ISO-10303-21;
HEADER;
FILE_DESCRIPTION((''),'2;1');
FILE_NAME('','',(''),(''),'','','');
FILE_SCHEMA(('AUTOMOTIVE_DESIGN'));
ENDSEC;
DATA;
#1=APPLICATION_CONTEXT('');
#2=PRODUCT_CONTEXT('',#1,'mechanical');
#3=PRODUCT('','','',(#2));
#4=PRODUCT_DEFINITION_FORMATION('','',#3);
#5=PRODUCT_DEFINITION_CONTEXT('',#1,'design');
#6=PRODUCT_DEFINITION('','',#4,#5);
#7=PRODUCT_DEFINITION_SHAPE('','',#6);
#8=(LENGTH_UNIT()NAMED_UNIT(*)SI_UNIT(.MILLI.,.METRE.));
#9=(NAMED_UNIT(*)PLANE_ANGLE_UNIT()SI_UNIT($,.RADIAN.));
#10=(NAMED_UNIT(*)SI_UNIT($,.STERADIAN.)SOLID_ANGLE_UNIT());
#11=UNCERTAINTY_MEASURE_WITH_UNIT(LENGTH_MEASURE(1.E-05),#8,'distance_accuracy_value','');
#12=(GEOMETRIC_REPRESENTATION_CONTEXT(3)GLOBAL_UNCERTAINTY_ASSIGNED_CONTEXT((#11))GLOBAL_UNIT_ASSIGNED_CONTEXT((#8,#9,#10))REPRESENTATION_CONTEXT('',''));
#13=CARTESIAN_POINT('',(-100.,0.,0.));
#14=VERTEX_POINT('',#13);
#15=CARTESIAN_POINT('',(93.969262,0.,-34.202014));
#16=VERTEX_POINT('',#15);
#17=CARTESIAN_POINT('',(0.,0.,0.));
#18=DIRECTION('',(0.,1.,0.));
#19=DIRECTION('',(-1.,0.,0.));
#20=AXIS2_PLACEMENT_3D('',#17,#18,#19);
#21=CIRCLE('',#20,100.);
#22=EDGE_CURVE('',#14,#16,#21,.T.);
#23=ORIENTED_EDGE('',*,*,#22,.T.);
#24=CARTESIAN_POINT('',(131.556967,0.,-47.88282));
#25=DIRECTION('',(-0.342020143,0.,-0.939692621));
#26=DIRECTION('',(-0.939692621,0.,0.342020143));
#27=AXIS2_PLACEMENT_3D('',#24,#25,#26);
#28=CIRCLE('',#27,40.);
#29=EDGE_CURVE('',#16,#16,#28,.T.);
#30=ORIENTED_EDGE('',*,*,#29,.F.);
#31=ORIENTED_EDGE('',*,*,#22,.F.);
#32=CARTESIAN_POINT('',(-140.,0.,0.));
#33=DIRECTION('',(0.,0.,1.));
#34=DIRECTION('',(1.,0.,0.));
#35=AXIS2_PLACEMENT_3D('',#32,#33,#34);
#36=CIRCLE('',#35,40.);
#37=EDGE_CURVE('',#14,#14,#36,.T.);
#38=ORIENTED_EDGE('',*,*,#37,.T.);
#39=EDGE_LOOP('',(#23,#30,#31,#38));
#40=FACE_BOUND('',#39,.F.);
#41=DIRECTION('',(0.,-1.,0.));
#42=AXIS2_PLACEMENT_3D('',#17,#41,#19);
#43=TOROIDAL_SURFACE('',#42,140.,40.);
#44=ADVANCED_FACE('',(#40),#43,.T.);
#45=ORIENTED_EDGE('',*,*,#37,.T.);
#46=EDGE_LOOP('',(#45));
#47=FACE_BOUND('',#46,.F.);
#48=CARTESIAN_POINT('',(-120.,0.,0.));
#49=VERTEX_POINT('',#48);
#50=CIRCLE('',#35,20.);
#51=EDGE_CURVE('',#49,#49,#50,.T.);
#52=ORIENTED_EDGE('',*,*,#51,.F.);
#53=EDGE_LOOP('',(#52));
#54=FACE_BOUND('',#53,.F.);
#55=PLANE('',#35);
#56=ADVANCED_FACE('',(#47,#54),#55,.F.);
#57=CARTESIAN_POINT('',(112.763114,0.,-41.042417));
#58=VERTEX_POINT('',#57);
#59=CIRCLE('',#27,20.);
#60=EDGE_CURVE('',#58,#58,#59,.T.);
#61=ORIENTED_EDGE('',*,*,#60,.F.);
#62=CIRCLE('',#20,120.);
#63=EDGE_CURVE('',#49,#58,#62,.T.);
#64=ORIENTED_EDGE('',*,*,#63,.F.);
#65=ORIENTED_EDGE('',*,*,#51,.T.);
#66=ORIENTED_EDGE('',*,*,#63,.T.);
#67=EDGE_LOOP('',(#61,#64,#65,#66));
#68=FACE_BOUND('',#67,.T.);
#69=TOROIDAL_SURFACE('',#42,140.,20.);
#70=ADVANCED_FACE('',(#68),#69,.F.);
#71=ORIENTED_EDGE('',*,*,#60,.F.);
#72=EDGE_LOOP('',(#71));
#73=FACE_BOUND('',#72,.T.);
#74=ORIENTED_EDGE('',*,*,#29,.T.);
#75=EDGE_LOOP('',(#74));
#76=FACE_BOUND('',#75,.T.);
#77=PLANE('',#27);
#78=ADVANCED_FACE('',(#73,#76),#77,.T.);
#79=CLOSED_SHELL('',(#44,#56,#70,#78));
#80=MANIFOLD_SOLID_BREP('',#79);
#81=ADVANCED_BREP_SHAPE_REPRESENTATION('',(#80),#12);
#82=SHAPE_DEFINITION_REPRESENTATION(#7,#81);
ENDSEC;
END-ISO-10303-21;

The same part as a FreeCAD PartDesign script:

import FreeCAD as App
import Part
import Sketcher

V = App.Vector

doc = App.newDocument("Part")
body = doc.addObject("PartDesign::Body", "Body")

# Sketch on XY plane
sketch1 = body.newObject("Sketcher::SketchObject", "Sketch")
sketch1.AttachmentSupport = (doc.getObject("XY_Plane"), [""])
sketch1.MapMode = "FlatFace"
sketch1.addGeometry(Part.Circle(V(-140, 0, 0), V(0, 0, 1), 40), False)
sketch1.addGeometry(Part.Circle(V(-140, 0, 0), V(0, 0, 1), 20), False)
sketch1.addConstraint(Sketcher.Constraint("Coincident", 1, 3, 0, 3))
sketch1.addConstraint(Sketcher.Constraint("PointOnObject", 0, 3, -1))
sketch1.addConstraint(Sketcher.Constraint("Diameter", 0, 80.0))
sketch1.addConstraint(Sketcher.Constraint("Diameter", 1, 40.0))
sketch1.addConstraint(Sketcher.Constraint("DistanceX", 0, 3, -1, 1, 140.0))
revolution = body.newObject("PartDesign::Revolution", "Revolution")
revolution.Profile = sketch1
revolution.ReferenceAxis = (sketch1, ["V_Axis"])
revolution.Angle = 200

doc.recompute()
